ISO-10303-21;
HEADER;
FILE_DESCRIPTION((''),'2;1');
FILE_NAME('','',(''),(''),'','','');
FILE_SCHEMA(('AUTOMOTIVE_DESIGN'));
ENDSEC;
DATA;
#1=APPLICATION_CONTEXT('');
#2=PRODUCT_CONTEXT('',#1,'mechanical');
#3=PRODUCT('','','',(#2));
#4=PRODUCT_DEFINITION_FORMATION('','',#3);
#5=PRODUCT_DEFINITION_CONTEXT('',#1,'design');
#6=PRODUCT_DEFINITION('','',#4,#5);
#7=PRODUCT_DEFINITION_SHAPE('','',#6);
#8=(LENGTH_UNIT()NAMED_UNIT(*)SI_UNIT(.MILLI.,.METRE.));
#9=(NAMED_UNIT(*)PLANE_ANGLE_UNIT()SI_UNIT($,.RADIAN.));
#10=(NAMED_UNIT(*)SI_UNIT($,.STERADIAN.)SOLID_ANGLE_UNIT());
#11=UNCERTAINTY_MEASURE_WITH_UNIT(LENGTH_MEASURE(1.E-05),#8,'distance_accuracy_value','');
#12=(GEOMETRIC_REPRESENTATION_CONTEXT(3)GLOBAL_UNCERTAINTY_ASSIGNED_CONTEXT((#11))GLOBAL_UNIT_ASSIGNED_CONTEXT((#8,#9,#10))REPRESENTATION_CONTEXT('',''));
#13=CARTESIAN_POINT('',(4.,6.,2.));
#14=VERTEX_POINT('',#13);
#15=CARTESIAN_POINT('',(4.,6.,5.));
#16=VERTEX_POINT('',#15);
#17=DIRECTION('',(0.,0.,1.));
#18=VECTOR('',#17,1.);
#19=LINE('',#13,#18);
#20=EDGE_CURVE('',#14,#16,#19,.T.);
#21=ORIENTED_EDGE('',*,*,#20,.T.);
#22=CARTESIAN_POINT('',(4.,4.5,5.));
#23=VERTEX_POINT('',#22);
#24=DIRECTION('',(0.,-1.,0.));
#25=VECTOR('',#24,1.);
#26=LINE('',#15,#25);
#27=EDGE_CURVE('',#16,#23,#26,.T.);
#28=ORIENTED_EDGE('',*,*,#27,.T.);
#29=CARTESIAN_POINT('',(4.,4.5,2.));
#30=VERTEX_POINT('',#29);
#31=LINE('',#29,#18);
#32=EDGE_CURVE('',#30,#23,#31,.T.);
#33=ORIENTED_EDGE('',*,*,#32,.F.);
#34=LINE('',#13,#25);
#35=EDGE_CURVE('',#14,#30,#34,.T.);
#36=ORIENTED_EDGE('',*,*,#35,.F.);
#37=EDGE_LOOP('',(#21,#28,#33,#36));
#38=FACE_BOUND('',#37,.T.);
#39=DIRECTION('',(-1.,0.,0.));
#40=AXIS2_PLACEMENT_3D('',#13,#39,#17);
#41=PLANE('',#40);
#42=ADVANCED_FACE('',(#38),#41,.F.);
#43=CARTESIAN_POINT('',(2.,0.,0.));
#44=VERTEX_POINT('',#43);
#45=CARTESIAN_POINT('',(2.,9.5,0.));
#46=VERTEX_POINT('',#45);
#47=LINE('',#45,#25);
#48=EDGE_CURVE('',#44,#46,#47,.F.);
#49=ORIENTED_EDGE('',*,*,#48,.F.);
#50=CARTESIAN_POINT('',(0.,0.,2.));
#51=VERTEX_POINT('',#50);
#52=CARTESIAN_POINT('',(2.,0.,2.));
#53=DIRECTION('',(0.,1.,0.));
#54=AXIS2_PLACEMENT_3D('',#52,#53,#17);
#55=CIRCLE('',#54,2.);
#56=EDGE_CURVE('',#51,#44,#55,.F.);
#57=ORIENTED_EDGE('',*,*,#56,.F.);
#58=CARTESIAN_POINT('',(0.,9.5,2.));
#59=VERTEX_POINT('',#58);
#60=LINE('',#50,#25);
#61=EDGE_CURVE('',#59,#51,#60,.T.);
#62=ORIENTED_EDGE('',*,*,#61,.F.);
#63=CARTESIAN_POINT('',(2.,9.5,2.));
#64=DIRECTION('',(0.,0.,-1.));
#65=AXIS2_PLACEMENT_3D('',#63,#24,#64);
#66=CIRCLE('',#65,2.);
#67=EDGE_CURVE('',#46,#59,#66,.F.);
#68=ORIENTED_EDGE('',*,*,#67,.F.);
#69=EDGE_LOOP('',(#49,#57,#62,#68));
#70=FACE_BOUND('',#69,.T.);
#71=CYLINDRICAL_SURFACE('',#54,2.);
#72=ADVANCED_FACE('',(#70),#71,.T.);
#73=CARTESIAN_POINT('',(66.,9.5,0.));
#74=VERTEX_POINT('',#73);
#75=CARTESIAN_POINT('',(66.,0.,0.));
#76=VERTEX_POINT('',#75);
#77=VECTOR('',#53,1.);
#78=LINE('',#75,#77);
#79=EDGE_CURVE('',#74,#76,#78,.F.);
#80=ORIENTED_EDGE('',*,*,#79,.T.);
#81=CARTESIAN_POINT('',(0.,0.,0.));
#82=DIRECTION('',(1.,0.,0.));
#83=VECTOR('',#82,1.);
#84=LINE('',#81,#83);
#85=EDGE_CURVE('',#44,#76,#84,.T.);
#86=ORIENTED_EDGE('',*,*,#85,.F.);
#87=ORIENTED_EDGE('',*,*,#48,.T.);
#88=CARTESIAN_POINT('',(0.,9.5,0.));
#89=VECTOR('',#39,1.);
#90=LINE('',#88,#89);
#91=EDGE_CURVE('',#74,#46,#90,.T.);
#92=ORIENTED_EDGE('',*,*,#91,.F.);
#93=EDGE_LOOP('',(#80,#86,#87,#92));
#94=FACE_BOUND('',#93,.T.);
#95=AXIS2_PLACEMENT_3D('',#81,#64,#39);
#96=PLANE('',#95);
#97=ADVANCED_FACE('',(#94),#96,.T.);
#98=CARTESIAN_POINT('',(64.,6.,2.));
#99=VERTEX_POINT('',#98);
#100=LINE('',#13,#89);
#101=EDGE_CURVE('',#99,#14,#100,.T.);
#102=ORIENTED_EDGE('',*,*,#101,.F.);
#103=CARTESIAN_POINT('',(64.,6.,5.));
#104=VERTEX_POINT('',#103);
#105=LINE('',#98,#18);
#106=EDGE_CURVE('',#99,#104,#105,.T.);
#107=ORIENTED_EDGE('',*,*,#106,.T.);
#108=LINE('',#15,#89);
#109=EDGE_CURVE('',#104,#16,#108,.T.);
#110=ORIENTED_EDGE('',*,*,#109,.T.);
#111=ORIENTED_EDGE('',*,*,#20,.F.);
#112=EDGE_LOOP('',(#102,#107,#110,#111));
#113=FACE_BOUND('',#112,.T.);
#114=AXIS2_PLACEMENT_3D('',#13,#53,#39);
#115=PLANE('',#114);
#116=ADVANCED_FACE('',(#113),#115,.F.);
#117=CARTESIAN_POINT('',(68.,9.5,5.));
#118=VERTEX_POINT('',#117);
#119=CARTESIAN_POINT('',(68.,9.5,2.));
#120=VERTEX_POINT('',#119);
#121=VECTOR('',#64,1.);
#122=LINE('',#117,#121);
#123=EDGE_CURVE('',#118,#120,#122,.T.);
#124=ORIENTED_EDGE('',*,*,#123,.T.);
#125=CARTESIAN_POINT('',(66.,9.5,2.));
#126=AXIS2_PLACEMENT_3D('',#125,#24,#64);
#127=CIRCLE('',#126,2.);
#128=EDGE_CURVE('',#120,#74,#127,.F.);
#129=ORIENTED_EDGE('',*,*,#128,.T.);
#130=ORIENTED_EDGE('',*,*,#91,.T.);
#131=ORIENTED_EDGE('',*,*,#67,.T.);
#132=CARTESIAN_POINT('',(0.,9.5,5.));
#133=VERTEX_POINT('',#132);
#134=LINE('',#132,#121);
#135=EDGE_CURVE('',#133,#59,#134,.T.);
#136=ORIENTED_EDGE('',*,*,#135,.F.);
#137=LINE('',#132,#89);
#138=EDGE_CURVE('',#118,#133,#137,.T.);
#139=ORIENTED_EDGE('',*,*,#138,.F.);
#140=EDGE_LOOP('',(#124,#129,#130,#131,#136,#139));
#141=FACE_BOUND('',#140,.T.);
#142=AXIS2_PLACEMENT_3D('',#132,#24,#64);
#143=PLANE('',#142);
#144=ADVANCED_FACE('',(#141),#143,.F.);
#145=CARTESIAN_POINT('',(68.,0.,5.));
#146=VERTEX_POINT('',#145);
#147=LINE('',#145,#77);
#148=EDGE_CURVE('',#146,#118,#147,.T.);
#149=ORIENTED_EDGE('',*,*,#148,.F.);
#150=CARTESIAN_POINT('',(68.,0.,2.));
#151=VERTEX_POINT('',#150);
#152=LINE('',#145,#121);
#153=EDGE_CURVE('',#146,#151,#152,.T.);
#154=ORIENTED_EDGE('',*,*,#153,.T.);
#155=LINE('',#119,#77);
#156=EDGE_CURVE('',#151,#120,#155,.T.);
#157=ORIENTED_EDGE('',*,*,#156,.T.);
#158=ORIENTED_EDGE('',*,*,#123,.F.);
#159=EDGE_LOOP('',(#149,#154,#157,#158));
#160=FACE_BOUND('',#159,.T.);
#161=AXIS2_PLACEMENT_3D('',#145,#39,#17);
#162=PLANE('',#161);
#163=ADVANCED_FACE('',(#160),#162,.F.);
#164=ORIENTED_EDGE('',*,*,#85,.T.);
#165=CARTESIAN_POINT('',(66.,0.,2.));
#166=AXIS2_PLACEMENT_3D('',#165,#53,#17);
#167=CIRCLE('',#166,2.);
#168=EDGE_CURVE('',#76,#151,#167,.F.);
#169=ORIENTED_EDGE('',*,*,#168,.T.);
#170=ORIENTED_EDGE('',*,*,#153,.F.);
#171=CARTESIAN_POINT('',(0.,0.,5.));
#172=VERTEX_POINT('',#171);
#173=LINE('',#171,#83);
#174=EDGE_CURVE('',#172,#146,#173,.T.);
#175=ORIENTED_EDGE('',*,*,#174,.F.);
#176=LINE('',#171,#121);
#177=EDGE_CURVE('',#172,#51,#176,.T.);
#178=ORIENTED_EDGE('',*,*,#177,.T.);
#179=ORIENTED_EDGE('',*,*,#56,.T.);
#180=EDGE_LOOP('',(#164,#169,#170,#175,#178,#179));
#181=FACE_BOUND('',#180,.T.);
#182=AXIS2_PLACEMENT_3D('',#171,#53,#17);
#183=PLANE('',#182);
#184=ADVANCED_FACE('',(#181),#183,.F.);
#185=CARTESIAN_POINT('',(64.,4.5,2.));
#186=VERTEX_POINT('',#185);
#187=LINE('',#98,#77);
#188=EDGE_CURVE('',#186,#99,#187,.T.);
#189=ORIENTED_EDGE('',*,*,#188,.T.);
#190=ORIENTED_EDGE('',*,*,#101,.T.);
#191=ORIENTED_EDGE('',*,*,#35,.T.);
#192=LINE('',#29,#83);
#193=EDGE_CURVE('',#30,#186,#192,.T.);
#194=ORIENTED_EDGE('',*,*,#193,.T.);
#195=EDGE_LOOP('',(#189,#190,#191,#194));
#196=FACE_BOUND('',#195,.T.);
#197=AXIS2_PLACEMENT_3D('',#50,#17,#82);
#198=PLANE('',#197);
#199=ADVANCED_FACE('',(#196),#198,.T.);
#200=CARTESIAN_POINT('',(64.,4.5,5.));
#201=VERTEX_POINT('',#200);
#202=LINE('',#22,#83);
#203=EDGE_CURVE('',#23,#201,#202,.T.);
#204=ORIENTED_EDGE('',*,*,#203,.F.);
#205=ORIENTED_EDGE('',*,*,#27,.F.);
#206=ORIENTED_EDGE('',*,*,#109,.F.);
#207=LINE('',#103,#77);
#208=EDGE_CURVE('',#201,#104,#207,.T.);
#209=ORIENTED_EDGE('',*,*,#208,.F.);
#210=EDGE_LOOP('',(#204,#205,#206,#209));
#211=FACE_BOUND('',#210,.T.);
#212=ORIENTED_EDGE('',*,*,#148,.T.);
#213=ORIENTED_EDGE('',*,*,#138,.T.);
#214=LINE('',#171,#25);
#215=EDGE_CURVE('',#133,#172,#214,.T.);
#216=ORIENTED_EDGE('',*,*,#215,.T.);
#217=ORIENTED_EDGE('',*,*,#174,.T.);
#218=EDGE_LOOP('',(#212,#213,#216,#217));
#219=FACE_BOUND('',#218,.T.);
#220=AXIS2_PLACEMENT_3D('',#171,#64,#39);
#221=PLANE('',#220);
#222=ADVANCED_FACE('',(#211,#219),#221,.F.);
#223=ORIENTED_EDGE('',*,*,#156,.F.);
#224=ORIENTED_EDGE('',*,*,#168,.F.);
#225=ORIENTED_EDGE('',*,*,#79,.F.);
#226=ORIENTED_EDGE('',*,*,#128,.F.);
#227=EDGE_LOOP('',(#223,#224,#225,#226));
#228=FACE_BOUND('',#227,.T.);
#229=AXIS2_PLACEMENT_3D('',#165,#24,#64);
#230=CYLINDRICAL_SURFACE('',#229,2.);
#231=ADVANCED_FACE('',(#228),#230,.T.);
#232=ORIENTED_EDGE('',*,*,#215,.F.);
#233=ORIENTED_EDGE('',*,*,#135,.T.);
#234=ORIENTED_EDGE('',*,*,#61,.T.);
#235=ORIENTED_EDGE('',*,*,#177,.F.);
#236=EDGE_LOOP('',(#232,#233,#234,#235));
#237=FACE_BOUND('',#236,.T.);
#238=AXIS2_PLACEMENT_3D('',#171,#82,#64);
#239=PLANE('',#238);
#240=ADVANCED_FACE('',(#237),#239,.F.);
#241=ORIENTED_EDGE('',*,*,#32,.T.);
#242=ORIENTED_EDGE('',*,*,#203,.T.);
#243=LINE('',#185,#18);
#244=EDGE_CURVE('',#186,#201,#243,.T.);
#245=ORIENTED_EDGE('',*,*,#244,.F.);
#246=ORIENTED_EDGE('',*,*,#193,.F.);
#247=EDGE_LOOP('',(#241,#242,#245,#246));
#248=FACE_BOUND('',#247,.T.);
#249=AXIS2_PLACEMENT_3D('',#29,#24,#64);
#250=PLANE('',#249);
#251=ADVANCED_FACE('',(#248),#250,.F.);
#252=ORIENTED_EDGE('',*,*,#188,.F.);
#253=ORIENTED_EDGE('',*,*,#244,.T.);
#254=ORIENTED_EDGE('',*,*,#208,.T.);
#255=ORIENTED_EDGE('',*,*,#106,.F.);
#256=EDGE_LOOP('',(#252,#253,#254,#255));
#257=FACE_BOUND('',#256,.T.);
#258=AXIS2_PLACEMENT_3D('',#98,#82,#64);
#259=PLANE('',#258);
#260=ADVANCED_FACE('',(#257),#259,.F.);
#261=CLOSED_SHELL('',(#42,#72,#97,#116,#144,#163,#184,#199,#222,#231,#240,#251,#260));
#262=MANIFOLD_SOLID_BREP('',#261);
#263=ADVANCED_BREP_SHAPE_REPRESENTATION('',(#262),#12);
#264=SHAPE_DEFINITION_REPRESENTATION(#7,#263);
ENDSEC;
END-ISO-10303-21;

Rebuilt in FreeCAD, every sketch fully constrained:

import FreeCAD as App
import Part
import Sketcher

V = App.Vector


def edges_at(feature, points):
    """Names of the edges that pass closest to the given points."""
    edges = feature.Shape.Edges
    near = lambda p: min(range(len(edges)), key=lambda i: edges[i].distToShape(Part.Vertex(*p))[0])
    return sorted({f"Edge{near(p) + 1}" for p in points})


def add_polygon(sketch, points):
    """Adds a closed chain of lines whose ends are joined by coincident constraints."""
    first, n = sketch.GeometryCount, len(points)
    for a, b in zip(points, points[1:] + points[:1]):
        sketch.addGeometry(Part.LineSegment(App.Vector(*a, 0), App.Vector(*b, 0)), False)
    for i in range(n):
        sketch.addConstraint(Sketcher.Constraint("Coincident", first + i, 2, first + (i + 1) % n, 1))

doc = App.newDocument("Part")
params = doc.addObject("Spreadsheet::Sheet", "Params")
for row, (alias, value) in enumerate([
    ("sketch1_width", "68 mm"),
    ("sketch1_height", "9.5 mm"),
    ("pad1_length", "5 mm"),
    ("sketch2_width", "60 mm"),
    ("sketch2_height", "1.5 mm"),
    ("pocket1_length", "3 mm"),
    ("fillet_radius", "2 mm"),
], start=1):
    params.set(f"A{row}", alias)
    params.set(f"B{row}", "=" + value)
    params.setAlias(f"B{row}", alias)

body = doc.addObject("PartDesign::Body", "Body")

# Sketch on XY plane
sketch1 = body.newObject("Sketcher::SketchObject", "Sketch")
sketch1.AttachmentSupport = (doc.getObject("XY_Plane"), [""])
sketch1.MapMode = "FlatFace"
add_polygon(sketch1, [(0, 10), (0, 0), (68, 0), (68, 10)])  # lines 0-3
sketch1.addConstraint([
    Sketcher.Constraint("Vertical", 0),
    Sketcher.Constraint("Horizontal", 1),
    Sketcher.Constraint("Vertical", 2),
    Sketcher.Constraint("Horizontal", 3),
    Sketcher.Constraint("Coincident", 0, 2, -1, 1),
    Sketcher.Constraint("DistanceX", 1, 1, 1, 2, 68.0),
    Sketcher.Constraint("DistanceY", 0, 2, 0, 1, 9.5),
])
sketch1.setExpression("Constraints[9]", "Params.sketch1_width")
sketch1.setExpression("Constraints[10]", "Params.sketch1_height")
pad1 = body.newObject("PartDesign::Pad", "Pad")
pad1.Profile = sketch1
pad1.setExpression("Length", "Params.pad1_length")

# Sketch on XY plane
sketch2 = body.newObject("Sketcher::SketchObject", "Sketch001")
sketch2.AttachmentSupport = (doc.getObject("XY_Plane"), [""])
sketch2.MapMode = "FlatFace"
sketch2.AttachmentOffset = App.Placement(V(0, 0, 5), App.Rotation())
add_polygon(sketch2, [(4, 6), (4, 4.5), (64, 4.5), (64, 6)])  # lines 0-3
sketch2.addConstraint([
    Sketcher.Constraint("Vertical", 0),
    Sketcher.Constraint("Horizontal", 1),
    Sketcher.Constraint("Vertical", 2),
    Sketcher.Constraint("Horizontal", 3),
    Sketcher.Constraint("DistanceX", 1, 1, 1, 2, 60.0),
    Sketcher.Constraint("DistanceY", 0, 2, 0, 1, 1.5),
    Sketcher.Constraint("DistanceX", -1, 1, 0, 2, 4.0),
    Sketcher.Constraint("DistanceY", -1, 1, 2, 2, 6.0),
])
sketch2.setExpression("Constraints[8]", "Params.sketch2_width")
sketch2.setExpression("Constraints[9]", "Params.sketch2_height")
pocket1 = body.newObject("PartDesign::Pocket", "Pocket")
pocket1.Profile = sketch2
pocket1.setExpression("Length", "Params.pocket1_length")
doc.recompute()

fillet = body.newObject("PartDesign::Fillet", "Fillet")
fillet.Base = (pocket1, edges_at(pocket1, [(68, 4.75, 0), (0, 4.75, 0)]))
fillet.setExpression("Radius", "Params.fillet_radius")

doc.recompute()
